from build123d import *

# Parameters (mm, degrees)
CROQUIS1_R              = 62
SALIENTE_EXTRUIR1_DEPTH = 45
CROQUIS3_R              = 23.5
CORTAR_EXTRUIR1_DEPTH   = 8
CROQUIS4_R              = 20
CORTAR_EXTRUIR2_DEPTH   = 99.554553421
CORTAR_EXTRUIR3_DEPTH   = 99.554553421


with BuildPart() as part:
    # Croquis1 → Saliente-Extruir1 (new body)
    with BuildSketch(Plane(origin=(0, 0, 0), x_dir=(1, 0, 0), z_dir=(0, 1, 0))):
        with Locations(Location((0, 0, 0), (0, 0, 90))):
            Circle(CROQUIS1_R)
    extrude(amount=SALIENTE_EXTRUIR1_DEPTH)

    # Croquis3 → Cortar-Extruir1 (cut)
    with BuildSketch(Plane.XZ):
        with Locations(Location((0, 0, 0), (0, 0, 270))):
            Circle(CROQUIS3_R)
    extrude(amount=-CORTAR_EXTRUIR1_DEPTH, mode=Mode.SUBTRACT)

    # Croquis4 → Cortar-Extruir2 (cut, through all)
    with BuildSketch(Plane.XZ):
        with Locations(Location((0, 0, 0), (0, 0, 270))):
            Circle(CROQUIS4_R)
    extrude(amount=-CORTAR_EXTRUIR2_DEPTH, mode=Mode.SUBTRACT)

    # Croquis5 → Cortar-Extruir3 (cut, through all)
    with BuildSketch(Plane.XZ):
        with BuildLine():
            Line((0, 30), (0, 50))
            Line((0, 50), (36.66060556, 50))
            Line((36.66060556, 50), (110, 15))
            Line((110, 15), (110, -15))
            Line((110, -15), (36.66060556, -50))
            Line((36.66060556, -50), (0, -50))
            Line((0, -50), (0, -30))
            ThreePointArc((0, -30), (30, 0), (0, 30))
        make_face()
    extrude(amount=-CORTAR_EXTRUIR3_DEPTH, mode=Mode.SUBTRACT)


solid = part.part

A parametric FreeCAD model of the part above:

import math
import FreeCAD as App
import Part
import Sketcher

V = App.Vector
Q = App.Units.Quantity

doc = App.newDocument("Part")
body = doc.addObject("PartDesign::Body", "Body")

# Sketch on XZ plane
sketch1 = doc.addObject("Sketcher::SketchObject", "Sketch")
body.addObject(sketch1)
sketch1.AttachmentSupport = (doc.XZ_Plane, [""])
sketch1.MapMode = "FlatFace"
sketch1.addGeometry(Part.Circle(V(0, 0, 0), V(0, 0, 1), 62), False)
sketch1.addConstraint(Sketcher.Constraint("Coincident", 0, 3, -1, 1))
sketch1.addConstraint(Sketcher.Constraint("Diameter", 0, Q("124 mm")))
pad1 = doc.addObject("PartDesign::Pad", "Pad")
body.addObject(pad1)
pad1.Profile = sketch1
pad1.Length = 45
pad1.Reversed = True

# Sketch on XZ plane
sketch2 = doc.addObject("Sketcher::SketchObject", "Sketch001")
body.addObject(sketch2)
sketch2.AttachmentSupport = (doc.XZ_Plane, [""])
sketch2.MapMode = "FlatFace"
sketch2.addGeometry(Part.Circle(V(0, 0, 0), V(0, 0, 1), 23.5), False)
sketch2.addConstraint(Sketcher.Constraint("Coincident", 0, 3, -1, 1))
sketch2.addConstraint(Sketcher.Constraint("Diameter", 0, Q("47 mm")))
pocket1 = doc.addObject("PartDesign::Pocket", "Pocket")
body.addObject(pocket1)
pocket1.Profile = sketch2
pocket1.Length = 8

# Sketch on XZ plane
sketch3 = doc.addObject("Sketcher::SketchObject", "Sketch002")
body.addObject(sketch3)
sketch3.AttachmentSupport = (doc.XZ_Plane, [""])
sketch3.MapMode = "FlatFace"
sketch3.addGeometry(Part.Circle(V(0, 0, 0), V(0, 0, 1), 20), False)
sketch3.addConstraint(Sketcher.Constraint("Coincident", 0, 3, -1, 1))
sketch3.addConstraint(Sketcher.Constraint("Diameter", 0, Q("40 mm")))
pocket2 = doc.addObject("PartDesign::Pocket", "Pocket001")
body.addObject(pocket2)
pocket2.Profile = sketch3
pocket2.Type = "ThroughAll"

# Sketch on XZ plane
sketch4 = doc.addObject("Sketcher::SketchObject", "Sketch003")
body.addObject(sketch4)
sketch4.AttachmentSupport = (doc.XZ_Plane, [""])
sketch4.MapMode = "FlatFace"
sketch4.addGeometry(Part.LineSegment(V(0, 50, 0), V(0, 30, 0)), False)
sketch4.addGeometry(Part.ArcOfCircle(Part.Circle(V(0, 0, 0), V(0, 0, 1), 30), math.radians(-90), math.radians(90)), False)
sketch4.addGeometry(Part.LineSegment(V(0, -30, 0), V(0, -50, 0)), False)
sketch4.addGeometry(Part.LineSegment(V(0, -50, 0), V(36.660606, -50, 0)), False)
sketch4.addGeometry(Part.LineSegment(V(36.660606, -50, 0), V(110, -15, 0)), False)
sketch4.addGeometry(Part.LineSegment(V(110, -15, 0), V(110, 15, 0)), False)
sketch4.addGeometry(Part.LineSegment(V(110, 15, 0), V(36.660606, 50, 0)), False)
sketch4.addGeometry(Part.LineSegment(V(36.660606, 50, 0), V(0, 50, 0)), False)
sketch4.addConstraint(Sketcher.Constraint("Coincident", 0, 2, 1, 2))
sketch4.addConstraint(Sketcher.Constraint("Coincident", 1, 1, 2, 1))
sketch4.addConstraint(Sketcher.Constraint("Coincident", 2, 2, 3, 1))
sketch4.addConstraint(Sketcher.Constraint("Coincident", 3, 2, 4, 1))
sketch4.addConstraint(Sketcher.Constraint("Coincident", 4, 2, 5, 1))
sketch4.addConstraint(Sketcher.Constraint("Coincident", 5, 2, 6, 1))
sketch4.addConstraint(Sketcher.Constraint("Coincident", 6, 2, 7, 1))
sketch4.addConstraint(Sketcher.Constraint("Coincident", 7, 2, 0, 1))
sketch4.addConstraint(Sketcher.Constraint("Vertical", 0))
sketch4.addConstraint(Sketcher.Constraint("Vertical", 2))
sketch4.addConstraint(Sketcher.Constraint("Horizontal", 3))
sketch4.addConstraint(Sketcher.Constraint("Vertical", 5))
sketch4.addConstraint(Sketcher.Constraint("Horizontal", 7))
sketch4.addConstraint(Sketcher.Constraint("Coincident", 1, 3, -1, 1))
sketch4.addConstraint(Sketcher.Constraint("Symmetric", 2, 2, 7, 2, -1, 1))
sketch4.addConstraint(Sketcher.Constraint("PointOnObject", 0, 2, -2))
sketch4.addConstraint(Sketcher.Constraint("Vertical", 3, 2, 6, 2))
sketch4.addConstraint(Sketcher.Constraint("Equal", 4, 6))
sketch4.addConstraint(Sketcher.Constraint("Radius", 1, Q("30 mm")))
sketch4.addConstraint(Sketcher.Constraint("DistanceY", 0, 2, 0, 1, Q("20 mm")))
sketch4.addConstraint(Sketcher.Constraint("DistanceY", 5, 1, 5, 2, Q("30 mm")))
sketch4.addConstraint(Sketcher.Constraint("DistanceX", -1, 1, 4, 2, Q("110 mm")))
sketch4.addConstraint(Sketcher.Constraint("Distance", 4, Q("81.262948 mm")))
pocket3 = doc.addObject("PartDesign::Pocket", "Pocket002")
body.addObject(pocket3)
pocket3.Profile = sketch4
pocket3.Type = "ThroughAll"

doc.recompute()
